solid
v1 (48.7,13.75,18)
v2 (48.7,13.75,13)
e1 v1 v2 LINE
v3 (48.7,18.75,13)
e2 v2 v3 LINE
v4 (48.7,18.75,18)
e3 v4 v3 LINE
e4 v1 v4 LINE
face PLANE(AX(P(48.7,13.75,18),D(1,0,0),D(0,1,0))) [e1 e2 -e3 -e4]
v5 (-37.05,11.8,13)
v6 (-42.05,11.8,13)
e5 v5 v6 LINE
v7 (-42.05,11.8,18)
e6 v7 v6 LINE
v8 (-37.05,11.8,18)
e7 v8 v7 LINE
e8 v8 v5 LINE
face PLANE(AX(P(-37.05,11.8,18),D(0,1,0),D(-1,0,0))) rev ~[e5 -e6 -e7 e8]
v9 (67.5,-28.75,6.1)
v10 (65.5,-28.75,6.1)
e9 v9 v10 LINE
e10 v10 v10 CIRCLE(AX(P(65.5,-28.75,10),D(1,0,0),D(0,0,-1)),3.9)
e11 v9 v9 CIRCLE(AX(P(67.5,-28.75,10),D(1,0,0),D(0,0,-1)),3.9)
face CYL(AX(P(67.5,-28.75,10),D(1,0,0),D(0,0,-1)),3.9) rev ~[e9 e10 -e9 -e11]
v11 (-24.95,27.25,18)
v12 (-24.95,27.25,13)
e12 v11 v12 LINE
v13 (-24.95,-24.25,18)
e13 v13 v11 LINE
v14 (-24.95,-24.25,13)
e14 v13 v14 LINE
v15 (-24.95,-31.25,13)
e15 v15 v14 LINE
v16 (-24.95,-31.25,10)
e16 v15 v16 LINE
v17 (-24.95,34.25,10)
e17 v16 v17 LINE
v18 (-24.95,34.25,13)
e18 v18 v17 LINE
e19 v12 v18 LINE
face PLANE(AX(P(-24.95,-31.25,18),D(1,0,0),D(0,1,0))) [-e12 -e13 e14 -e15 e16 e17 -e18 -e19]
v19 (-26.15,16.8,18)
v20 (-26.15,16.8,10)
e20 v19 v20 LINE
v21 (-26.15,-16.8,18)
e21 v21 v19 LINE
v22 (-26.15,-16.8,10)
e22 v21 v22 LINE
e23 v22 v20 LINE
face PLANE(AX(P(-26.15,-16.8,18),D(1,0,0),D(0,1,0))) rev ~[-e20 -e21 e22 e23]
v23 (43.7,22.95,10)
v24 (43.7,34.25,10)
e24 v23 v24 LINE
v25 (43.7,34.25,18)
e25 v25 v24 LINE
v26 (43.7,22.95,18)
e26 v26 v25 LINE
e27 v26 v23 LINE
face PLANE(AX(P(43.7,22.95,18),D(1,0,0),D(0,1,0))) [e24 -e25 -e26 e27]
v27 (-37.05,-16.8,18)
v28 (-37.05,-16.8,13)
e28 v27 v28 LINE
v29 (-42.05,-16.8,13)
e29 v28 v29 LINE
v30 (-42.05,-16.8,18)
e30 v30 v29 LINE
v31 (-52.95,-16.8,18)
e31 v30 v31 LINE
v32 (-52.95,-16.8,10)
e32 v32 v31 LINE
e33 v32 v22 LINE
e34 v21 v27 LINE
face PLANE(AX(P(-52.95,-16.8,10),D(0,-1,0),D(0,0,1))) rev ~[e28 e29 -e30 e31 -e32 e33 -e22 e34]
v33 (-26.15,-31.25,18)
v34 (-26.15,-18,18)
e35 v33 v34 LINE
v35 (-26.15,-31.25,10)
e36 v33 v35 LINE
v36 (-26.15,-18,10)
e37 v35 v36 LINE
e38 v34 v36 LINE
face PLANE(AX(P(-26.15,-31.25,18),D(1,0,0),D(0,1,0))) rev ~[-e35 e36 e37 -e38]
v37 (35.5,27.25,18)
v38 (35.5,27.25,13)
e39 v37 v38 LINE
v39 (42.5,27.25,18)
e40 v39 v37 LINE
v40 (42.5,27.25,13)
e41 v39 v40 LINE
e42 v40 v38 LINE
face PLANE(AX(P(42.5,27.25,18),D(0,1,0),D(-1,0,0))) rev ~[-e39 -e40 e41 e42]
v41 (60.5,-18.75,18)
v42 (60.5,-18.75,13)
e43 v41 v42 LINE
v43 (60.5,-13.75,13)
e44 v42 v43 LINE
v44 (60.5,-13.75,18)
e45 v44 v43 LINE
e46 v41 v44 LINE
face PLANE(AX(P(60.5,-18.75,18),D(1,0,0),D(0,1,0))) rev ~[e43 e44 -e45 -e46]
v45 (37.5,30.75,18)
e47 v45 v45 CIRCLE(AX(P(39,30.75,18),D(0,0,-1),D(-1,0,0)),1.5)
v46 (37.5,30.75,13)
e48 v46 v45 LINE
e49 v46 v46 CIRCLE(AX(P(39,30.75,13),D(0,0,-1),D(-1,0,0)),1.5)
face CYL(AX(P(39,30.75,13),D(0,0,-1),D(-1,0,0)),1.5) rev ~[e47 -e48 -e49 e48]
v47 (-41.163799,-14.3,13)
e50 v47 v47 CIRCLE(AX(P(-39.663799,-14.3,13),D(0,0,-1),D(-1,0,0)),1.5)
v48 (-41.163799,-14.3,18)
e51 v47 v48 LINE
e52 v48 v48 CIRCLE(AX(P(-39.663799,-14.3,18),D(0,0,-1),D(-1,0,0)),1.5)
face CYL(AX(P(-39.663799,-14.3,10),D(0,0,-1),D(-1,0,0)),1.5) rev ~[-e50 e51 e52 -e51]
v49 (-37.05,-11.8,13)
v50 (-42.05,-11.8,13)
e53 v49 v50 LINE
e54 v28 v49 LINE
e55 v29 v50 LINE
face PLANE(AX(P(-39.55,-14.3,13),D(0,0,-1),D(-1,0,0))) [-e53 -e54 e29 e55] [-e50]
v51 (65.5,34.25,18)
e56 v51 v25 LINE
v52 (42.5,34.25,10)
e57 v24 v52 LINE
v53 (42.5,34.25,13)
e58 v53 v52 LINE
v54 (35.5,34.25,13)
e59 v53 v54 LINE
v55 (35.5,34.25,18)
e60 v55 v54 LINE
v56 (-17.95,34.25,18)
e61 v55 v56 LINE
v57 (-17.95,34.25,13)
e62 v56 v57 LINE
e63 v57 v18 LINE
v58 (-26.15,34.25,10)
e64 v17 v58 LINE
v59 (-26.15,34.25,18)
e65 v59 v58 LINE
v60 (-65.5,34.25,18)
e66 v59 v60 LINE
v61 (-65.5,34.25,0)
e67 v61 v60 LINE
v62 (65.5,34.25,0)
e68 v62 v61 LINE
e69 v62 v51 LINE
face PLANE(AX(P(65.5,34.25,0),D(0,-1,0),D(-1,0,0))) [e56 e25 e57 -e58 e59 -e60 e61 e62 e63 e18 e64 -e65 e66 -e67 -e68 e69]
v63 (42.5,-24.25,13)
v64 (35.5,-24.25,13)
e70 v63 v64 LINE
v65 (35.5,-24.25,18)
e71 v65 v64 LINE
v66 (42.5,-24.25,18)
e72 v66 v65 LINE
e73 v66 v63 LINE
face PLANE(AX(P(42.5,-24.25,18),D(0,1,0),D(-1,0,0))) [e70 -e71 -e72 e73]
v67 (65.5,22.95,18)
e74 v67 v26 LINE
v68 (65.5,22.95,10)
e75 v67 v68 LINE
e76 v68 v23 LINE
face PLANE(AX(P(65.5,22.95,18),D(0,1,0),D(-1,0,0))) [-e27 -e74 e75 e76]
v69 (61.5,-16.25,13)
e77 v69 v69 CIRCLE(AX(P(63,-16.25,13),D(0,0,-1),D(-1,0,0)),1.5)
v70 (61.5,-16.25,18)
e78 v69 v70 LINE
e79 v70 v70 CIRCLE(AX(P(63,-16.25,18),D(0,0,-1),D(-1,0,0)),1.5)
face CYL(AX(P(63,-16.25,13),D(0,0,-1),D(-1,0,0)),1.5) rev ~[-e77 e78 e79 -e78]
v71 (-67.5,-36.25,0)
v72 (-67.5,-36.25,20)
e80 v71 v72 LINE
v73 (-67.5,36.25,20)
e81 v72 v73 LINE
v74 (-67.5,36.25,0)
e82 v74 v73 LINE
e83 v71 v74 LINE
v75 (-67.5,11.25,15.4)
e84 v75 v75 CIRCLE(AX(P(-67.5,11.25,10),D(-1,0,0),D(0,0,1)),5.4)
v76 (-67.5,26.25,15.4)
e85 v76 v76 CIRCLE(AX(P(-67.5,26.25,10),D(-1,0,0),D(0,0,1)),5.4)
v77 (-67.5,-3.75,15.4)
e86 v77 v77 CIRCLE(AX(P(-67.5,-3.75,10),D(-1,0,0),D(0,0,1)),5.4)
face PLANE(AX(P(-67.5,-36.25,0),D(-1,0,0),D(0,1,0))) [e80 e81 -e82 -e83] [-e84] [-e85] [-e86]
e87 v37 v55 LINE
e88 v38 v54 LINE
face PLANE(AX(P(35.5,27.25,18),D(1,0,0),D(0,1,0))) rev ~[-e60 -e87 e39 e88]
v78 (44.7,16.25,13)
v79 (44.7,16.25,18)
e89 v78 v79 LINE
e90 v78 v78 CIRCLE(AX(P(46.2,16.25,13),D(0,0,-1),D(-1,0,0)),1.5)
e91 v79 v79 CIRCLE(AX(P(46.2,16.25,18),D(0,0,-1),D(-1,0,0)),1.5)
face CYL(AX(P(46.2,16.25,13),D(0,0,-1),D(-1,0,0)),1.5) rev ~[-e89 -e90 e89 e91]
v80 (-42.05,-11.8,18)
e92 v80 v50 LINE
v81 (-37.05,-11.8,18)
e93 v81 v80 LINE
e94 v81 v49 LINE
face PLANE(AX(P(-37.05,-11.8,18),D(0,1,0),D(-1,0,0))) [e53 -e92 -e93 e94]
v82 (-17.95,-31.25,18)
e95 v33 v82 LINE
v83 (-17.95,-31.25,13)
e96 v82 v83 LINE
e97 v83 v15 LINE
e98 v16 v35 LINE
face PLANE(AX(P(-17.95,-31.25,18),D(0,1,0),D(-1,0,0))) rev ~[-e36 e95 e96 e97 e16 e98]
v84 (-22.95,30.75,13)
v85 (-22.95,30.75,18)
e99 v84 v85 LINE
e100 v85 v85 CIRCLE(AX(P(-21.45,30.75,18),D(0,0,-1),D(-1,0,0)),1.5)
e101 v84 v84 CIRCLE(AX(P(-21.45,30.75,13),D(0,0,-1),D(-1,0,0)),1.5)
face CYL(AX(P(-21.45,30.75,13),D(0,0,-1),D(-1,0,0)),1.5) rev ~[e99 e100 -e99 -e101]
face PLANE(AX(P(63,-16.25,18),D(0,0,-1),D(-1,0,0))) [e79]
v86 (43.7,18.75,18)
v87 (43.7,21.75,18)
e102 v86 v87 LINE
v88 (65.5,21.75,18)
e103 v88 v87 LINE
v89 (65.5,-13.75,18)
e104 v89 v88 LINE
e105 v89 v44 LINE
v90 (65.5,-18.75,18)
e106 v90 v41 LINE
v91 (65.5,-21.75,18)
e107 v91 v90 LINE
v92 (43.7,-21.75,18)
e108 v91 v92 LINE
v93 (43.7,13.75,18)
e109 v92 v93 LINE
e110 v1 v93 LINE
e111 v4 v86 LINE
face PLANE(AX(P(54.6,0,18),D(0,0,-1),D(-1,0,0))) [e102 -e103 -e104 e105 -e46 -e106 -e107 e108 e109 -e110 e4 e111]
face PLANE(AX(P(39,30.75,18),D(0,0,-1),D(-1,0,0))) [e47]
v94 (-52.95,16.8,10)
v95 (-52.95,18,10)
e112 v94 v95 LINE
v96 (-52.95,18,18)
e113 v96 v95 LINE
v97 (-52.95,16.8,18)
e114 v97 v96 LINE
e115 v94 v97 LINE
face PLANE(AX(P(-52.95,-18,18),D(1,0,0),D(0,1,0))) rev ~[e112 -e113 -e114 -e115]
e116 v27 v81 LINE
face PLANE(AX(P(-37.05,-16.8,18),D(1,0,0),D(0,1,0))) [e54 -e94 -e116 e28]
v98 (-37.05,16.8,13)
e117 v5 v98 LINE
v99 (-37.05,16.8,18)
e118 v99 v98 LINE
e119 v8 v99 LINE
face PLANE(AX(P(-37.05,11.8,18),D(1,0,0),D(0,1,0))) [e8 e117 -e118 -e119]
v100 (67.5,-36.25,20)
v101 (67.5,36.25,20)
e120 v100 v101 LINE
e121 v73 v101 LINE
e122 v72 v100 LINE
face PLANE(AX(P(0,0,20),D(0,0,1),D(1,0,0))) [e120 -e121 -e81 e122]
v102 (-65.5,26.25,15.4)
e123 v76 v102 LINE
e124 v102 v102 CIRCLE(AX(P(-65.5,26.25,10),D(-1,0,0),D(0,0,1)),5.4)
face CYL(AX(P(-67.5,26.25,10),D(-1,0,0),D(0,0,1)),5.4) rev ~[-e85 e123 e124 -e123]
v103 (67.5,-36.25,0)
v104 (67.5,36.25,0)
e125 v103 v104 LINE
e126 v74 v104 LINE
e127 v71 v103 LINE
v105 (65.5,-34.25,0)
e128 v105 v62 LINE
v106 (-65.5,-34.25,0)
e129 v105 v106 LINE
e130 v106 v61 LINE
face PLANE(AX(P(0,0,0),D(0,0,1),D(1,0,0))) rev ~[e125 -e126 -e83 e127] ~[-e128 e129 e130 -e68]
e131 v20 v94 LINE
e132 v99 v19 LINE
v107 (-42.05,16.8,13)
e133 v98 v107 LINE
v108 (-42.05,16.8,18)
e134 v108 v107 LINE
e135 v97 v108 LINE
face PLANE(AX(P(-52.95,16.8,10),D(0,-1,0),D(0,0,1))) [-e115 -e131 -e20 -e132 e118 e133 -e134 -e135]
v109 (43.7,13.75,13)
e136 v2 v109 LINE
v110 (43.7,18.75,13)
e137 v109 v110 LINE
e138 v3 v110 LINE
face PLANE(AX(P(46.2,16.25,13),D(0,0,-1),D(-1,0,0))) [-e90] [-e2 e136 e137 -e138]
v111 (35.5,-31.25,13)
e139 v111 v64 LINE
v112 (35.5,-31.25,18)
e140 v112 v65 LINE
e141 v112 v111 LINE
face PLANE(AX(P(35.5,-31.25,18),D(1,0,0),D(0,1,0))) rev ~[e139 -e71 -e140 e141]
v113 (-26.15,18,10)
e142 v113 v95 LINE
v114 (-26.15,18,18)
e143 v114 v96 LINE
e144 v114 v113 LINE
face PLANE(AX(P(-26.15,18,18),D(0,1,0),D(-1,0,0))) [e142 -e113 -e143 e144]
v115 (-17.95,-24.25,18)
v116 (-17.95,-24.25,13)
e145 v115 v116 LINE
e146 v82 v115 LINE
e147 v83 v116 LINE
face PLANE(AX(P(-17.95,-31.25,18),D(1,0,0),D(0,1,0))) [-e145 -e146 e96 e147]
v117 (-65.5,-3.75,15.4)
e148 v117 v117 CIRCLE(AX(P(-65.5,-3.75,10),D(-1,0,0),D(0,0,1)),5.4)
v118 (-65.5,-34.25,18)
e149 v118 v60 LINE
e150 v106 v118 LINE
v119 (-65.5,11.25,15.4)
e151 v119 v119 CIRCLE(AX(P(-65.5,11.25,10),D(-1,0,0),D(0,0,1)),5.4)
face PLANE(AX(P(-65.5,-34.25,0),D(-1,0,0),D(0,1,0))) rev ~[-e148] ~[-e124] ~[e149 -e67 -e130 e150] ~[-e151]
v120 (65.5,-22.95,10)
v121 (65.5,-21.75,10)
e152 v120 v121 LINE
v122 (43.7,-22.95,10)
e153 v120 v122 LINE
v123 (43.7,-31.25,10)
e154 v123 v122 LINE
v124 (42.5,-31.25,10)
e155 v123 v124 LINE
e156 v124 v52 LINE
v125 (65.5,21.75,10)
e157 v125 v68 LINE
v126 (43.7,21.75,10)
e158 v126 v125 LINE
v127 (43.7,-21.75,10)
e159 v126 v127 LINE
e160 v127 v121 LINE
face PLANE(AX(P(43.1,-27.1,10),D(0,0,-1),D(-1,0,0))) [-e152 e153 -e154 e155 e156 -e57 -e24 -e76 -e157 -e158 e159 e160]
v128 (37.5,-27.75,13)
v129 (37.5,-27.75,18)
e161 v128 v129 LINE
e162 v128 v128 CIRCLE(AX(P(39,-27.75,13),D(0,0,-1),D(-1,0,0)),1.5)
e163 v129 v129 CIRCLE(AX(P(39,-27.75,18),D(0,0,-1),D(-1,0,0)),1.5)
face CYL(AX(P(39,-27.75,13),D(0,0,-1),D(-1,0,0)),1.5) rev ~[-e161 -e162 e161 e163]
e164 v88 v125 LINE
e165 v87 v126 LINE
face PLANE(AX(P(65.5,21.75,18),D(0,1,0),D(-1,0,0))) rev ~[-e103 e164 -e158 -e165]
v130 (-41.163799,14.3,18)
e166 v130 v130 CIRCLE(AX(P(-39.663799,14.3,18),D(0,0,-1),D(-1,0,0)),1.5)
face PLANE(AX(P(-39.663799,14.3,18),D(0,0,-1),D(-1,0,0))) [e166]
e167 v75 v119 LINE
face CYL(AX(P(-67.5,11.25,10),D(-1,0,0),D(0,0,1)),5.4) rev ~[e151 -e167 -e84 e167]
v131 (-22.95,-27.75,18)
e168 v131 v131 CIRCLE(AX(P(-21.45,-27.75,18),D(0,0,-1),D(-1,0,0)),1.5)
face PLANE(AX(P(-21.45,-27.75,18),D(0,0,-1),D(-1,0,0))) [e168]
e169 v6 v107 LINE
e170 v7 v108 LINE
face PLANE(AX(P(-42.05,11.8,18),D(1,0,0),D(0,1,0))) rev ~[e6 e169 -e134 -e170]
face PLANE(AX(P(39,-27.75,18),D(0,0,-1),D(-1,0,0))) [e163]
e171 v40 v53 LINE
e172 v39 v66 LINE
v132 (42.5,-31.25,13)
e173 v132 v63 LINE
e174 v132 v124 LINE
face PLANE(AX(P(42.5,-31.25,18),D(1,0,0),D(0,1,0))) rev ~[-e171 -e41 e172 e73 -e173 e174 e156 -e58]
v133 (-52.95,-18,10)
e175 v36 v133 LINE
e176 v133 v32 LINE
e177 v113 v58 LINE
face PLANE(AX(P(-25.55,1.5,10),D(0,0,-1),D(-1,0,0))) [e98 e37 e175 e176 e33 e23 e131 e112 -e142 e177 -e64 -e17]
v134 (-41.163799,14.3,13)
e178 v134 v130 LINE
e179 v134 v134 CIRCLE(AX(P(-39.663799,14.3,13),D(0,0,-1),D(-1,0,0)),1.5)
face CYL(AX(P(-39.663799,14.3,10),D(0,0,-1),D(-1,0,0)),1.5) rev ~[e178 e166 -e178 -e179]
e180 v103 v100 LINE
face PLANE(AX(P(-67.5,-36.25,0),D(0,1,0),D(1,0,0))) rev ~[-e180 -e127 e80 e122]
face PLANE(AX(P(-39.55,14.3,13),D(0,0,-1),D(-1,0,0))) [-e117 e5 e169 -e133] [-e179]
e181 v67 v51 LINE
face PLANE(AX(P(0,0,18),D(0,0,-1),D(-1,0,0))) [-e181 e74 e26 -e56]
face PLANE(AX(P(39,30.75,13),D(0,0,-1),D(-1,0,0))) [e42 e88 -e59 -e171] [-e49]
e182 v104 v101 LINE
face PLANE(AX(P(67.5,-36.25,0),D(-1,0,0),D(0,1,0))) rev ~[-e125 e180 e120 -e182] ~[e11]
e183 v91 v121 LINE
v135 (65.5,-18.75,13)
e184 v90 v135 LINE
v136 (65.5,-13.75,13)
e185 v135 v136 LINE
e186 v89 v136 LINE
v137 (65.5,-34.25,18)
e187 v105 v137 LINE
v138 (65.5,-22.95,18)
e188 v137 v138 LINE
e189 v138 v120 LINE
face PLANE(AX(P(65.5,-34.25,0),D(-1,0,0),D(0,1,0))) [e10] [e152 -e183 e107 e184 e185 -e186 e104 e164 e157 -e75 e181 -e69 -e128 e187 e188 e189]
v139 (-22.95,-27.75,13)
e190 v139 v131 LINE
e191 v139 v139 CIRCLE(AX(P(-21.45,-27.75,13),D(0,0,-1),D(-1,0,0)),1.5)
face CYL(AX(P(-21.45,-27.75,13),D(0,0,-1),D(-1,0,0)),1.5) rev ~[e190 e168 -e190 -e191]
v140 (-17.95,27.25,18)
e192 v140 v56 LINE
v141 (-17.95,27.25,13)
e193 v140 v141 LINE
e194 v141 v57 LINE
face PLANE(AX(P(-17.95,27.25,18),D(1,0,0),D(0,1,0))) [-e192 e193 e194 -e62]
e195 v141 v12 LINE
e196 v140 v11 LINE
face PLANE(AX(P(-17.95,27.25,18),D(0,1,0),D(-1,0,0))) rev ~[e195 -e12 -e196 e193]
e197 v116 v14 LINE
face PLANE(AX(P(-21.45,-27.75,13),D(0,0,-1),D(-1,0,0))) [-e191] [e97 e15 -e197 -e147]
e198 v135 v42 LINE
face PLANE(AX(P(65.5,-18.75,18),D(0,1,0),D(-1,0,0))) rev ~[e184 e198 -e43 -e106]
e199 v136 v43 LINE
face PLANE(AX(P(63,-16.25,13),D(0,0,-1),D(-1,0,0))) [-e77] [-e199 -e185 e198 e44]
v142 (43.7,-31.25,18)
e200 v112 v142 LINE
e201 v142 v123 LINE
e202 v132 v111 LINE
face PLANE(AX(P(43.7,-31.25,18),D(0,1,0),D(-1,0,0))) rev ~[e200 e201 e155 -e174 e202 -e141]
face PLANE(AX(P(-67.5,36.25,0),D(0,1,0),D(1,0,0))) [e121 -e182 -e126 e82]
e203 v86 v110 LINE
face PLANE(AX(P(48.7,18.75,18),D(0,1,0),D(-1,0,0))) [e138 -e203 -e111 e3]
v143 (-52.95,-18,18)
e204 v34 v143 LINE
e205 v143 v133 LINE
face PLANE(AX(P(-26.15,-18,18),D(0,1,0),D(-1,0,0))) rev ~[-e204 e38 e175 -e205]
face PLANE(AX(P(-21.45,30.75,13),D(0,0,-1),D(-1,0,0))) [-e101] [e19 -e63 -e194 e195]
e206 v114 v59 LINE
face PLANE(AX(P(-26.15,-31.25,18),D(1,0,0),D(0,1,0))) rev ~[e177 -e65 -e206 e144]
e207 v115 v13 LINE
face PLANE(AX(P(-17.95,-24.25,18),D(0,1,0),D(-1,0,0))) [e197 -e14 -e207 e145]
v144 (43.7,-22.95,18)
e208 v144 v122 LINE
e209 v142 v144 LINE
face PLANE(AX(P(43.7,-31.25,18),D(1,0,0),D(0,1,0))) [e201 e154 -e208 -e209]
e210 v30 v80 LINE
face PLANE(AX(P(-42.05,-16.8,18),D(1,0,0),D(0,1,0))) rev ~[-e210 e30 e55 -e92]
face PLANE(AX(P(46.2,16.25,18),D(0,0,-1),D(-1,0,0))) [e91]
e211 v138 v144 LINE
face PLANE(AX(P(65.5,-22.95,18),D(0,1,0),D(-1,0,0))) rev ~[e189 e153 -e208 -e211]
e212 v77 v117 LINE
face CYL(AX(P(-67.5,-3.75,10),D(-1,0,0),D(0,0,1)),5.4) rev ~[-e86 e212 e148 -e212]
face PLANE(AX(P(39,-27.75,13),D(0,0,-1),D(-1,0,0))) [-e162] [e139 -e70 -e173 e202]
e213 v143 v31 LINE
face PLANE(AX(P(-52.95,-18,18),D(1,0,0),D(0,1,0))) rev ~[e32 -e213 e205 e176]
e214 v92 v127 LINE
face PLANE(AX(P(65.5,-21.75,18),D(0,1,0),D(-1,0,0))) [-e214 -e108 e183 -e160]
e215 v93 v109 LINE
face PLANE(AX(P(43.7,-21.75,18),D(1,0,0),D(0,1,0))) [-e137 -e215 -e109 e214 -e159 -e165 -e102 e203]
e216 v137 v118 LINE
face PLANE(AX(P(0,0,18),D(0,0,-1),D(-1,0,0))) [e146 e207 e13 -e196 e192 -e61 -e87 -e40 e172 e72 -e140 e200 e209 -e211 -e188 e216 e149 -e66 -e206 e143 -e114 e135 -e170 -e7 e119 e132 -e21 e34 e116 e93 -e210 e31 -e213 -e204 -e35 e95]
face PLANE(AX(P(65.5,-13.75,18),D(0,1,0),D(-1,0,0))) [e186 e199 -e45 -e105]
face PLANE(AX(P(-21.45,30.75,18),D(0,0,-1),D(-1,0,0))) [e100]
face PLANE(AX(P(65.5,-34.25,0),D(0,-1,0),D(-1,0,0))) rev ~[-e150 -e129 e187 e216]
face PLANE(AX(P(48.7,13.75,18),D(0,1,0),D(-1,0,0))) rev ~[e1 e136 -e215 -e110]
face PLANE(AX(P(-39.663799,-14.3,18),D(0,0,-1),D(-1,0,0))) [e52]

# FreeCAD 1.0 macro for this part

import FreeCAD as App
import Part
import Sketcher
from FreeCAD import Vector
Q = App.Units.Quantity

doc = App.newDocument("Part")
body = doc.addObject("PartDesign::Body", "Body")

# Sketch on XY plane
sketch1 = body.newObject("Sketcher::SketchObject", "Sketch")
sketch1.AttachmentSupport = (doc.getObject("XY_Plane"), [""])
sketch1.MapMode = "FlatFace"
sketch1.addGeometry([
    Part.LineSegment(Vector(-68, 36, 0), Vector(-68, -36, 0)),
    Part.LineSegment(Vector(-68, -36, 0), Vector(68, -36, 0)),
    Part.LineSegment(Vector(68, -36, 0), Vector(68, 36, 0)),
    Part.LineSegment(Vector(68, 36, 0), Vector(-68, 36, 0)),
], False)
sketch1.addConstraint([
    Sketcher.Constraint("Coincident", 0, 2, 1, 1),
    Sketcher.Constraint("Coincident", 1, 2, 2, 1),
    Sketcher.Constraint("Coincident", 2, 2, 3, 1),
    Sketcher.Constraint("Coincident", 3, 2, 0, 1),
    Sketcher.Constraint("Vertical", 0),
    Sketcher.Constraint("Horizontal", 1),
    Sketcher.Constraint("Vertical", 2),
    Sketcher.Constraint("Horizontal", 3),
    Sketcher.Constraint("Symmetric", 0, 2, 2, 2, -1, 1),
    Sketcher.Constraint("DistanceX", 1, 1, 1, 2, Q("135 mm")),
    Sketcher.Constraint("DistanceY", 0, 2, 0, 1, Q("72.5 mm")),
])
pad1 = body.newObject("PartDesign::Pad", "Pad")
pad1.Profile = sketch1
pad1.Length = 20

# Sketch on XY plane
sketch2 = body.newObject("Sketcher::SketchObject", "Sketch001")
sketch2.AttachmentSupport = (doc.getObject("XY_Plane"), [""])
sketch2.MapMode = "FlatFace"
sketch2.addGeometry([
    Part.LineSegment(Vector(66, 34, 0), Vector(66, -34, 0)),
    Part.LineSegment(Vector(66, -34, 0), Vector(-66, -34, 0)),
    Part.LineSegment(Vector(-66, -34, 0), Vector(-66, 34, 0)),
    Part.LineSegment(Vector(-66, 34, 0), Vector(66, 34, 0)),
], False)
sketch2.addConstraint([
    Sketcher.Constraint("Coincident", 0, 2, 1, 1),
    Sketcher.Constraint("Coincident", 1, 2, 2, 1),
    Sketcher.Constraint("Coincident", 2, 2, 3, 1),
    Sketcher.Constraint("Coincident", 3, 2, 0, 1),
    Sketcher.Constraint("Vertical", 0),
    Sketcher.Constraint("Horizontal", 1),
    Sketcher.Constraint("Vertical", 2),
    Sketcher.Constraint("Horizontal", 3),
    Sketcher.Constraint("Symmetric", 0, 2, 2, 2, -1, 1),
    Sketcher.Constraint("DistanceX", 1, 2, 1, 1, Q("131 mm")),
    Sketcher.Constraint("DistanceY", 0, 2, 0, 1, Q("68.5 mm")),
])
pocket1 = body.newObject("PartDesign::Pocket", "Pocket")
pocket1.Profile = sketch2
pocket1.Length = 18
pocket1.Reversed = True

# Sketch on XY plane
sketch3 = body.newObject("Sketcher::SketchObject", "Sketch002")
sketch3.AttachmentSupport = (doc.getObject("XY_Plane"), [""])
sketch3.MapMode = "FlatFace"
sketch3.AttachmentOffset = App.Placement(Vector(0, 0, 18), App.Rotation())
sketch3.addGeometry([
    Part.LineSegment(Vector(66, 23, 0), Vector(66, -23, 0)),
    Part.LineSegment(Vector(66, -23, 0), Vector(42, -23, 0)),
    Part.LineSegment(Vector(42, -23, 0), Vector(42, 23, 0)),
    Part.LineSegment(Vector(42, 23, 0), Vector(66, 23, 0)),
], False)
sketch3.addConstraint([
    Sketcher.Constraint("Coincident", 0, 2, 1, 1),
    Sketcher.Constraint("Coincident", 1, 2, 2, 1),
    Sketcher.Constraint("Coincident", 2, 2, 3, 1),
    Sketcher.Constraint("Coincident", 3, 2, 0, 1),
    Sketcher.Constraint("Vertical", 0),
    Sketcher.Constraint("Horizontal", 1),
    Sketcher.Constraint("Vertical", 2),
    Sketcher.Constraint("Horizontal", 3),
    Sketcher.Constraint("DistanceX", 1, 2, 1, 1, Q("23 mm")),
    Sketcher.Constraint("DistanceY", 0, 2, 0, 1, Q("45.9 mm")),
    Sketcher.Constraint("DistanceX", -1, 1, 0, 2, Q("65.5 mm")),
    Sketcher.Constraint("DistanceY", 0, 2, -1, 1, Q("22.95 mm")),
])
pad2 = body.newObject("PartDesign::Pad", "Pad001")
pad2.Profile = sketch3
pad2.Length = 8
pad2.Reversed = True

# Sketch on XY plane
sketch4 = body.newObject("Sketcher::SketchObject", "Sketch003")
sketch4.AttachmentSupport = (doc.getObject("XY_Plane"), [""])
sketch4.MapMode = "FlatFace"
sketch4.AttachmentOffset = App.Placement(Vector(0, 0, 18), App.Rotation())
sketch4.addGeometry([
    Part.LineSegment(Vector(66, 22, 0), Vector(66, -22, 0)),
    Part.LineSegment(Vector(66, -22, 0), Vector(44, -22, 0)),
    Part.LineSegment(Vector(44, -22, 0), Vector(44, 22, 0)),
    Part.LineSegment(Vector(44, 22, 0), Vector(66, 22, 0)),
], False)
sketch4.addConstraint([
    Sketcher.Constraint("Coincident", 0, 2, 1, 1),
    Sketcher.Constraint("Coincident", 1, 2, 2, 1),
    Sketcher.Constraint("Coincident", 2, 2, 3, 1),
    Sketcher.Constraint("Coincident", 3, 2, 0, 1),
    Sketcher.Constraint("Vertical", 0),
    Sketcher.Constraint("Horizontal", 1),
    Sketcher.Constraint("Vertical", 2),
    Sketcher.Constraint("Horizontal", 3),
    Sketcher.Constraint("DistanceX", 1, 2, 1, 1, Q("21.8 mm")),
    Sketcher.Constraint("DistanceY", 0, 2, 0, 1, Q("43.5 mm")),
    Sketcher.Constraint("DistanceX", -1, 1, 0, 2, Q("65.5 mm")),
    Sketcher.Constraint("DistanceY", 0, 2, -1, 1, Q("21.75 mm")),
])
pocket2 = body.newObject("PartDesign::Pocket", "Pocket001")
pocket2.Profile = sketch4
pocket2.Length = 18

# Sketch on XY plane
sketch5 = body.newObject("Sketcher::SketchObject", "Sketch004")
sketch5.AttachmentSupport = (doc.getObject("XY_Plane"), [""])
sketch5.MapMode = "FlatFace"
sketch5.AttachmentOffset = App.Placement(Vector(0, 0, 18), App.Rotation())
sketch5.addGeometry([
    Part.LineSegment(Vector(43.7, -22.9, 0), Vector(43.7, -31.2, 0)),  # 0
    Part.LineSegment(Vector(43.7, -31.2, 0), Vector(42.5, -31.2, 0)),  # 1
    Part.LineSegment(Vector(42.5, -31.2, 0), Vector(42.5, -22.9, 0)),  # 2
    Part.LineSegment(Vector(42.5, -22.9, 0), Vector(43.7, -22.9, 0)),  # 3
    Part.LineSegment(Vector(43.7, 34.2, 0), Vector(43.7, 22.9, 0)),  # 4
    Part.LineSegment(Vector(43.7, 22.9, 0), Vector(42.5, 22.9, 0)),  # 5
    Part.LineSegment(Vector(42.5, 22.9, 0), Vector(42.5, 34.2, 0)),  # 6
    Part.LineSegment(Vector(42.5, 34.2, 0), Vector(43.7, 34.2, 0)),  # 7
], False)
sketch5.addConstraint([
    Sketcher.Constraint("Coincident", 0, 2, 1, 1),
    Sketcher.Constraint("Coincident", 1, 2, 2, 1),
    Sketcher.Constraint("Coincident", 2, 2, 3, 1),
    Sketcher.Constraint("Coincident", 3, 2, 0, 1),
    Sketcher.Constraint("Coincident", 4, 2, 5, 1),
    Sketcher.Constraint("Coincident", 5, 2, 6, 1),
    Sketcher.Constraint("Coincident", 6, 2, 7, 1),
    Sketcher.Constraint("Coincident", 7, 2, 4, 1),
    Sketcher.Constraint("Vertical", 0),
    Sketcher.Constraint("Horizontal", 1),
    Sketcher.Constraint("Vertical", 2),
    Sketcher.Constraint("Horizontal", 3),
    Sketcher.Constraint("Vertical", 4),
    Sketcher.Constraint("Horizontal", 5),
    Sketcher.Constraint("Vertical", 6),
    Sketcher.Constraint("Horizontal", 7),
    Sketcher.Constraint("Symmetric", 3, 2, 4, 2, -1),
    Sketcher.Constraint("Vertical", 2, 2, 5, 2),
    Sketcher.Constraint("DistanceX", 1, 2, 1, 1, Q("1.2 mm")),
    Sketcher.Constraint("DistanceY", 0, 2, 0, 1, Q("8.3 mm")),
    Sketcher.Constraint("DistanceY", 4, 2, 4, 1, Q("11.3 mm")),
    Sketcher.Constraint("DistanceX", -1, 1, 0, 2, Q("43.7 mm")),
    Sketcher.Constraint("DistanceY", 3, 2, 4, 2, Q("45.9 mm")),
])
pad3 = body.newObject("PartDesign::Pad", "Pad002")
pad3.Profile = sketch5
pad3.Length = 8
pad3.Reversed = True

# Sketch on XY plane
sketch6 = body.newObject("Sketcher::SketchObject", "Sketch005")
sketch6.AttachmentSupport = (doc.getObject("XY_Plane"), [""])
sketch6.MapMode = "FlatFace"
sketch6.AttachmentOffset = App.Placement(Vector(0, 0, 18), App.Rotation())
sketch6.addGeometry([
    Part.LineSegment(Vector(-24.9, 34.2, 0), Vector(-24.9, -31.2, 0)),
    Part.LineSegment(Vector(-24.9, -31.2, 0), Vector(-26.1, -31.2, 0)),
    Part.LineSegment(Vector(-26.1, -31.2, 0), Vector(-26.1, 34.2, 0)),
    Part.LineSegment(Vector(-26.1, 34.2, 0), Vector(-24.9, 34.2, 0)),
], False)
sketch6.addConstraint([
    Sketcher.Constraint("Coincident", 0, 2, 1, 1),
    Sketcher.Constraint("Coincident", 1, 2, 2, 1),
    Sketcher.Constraint("Coincident", 2, 2, 3, 1),
    Sketcher.Constraint("Coincident", 3, 2, 0, 1),
    Sketcher.Constraint("Vertical", 0),
    Sketcher.Constraint("Horizontal", 1),
    Sketcher.Constraint("Vertical", 2),
    Sketcher.Constraint("Horizontal", 3),
    Sketcher.Constraint("DistanceX", 1, 2, 1, 1, Q("1.2 mm")),
    Sketcher.Constraint("DistanceY", 0, 2, 0, 1, Q("65.5 mm")),
    Sketcher.Constraint("DistanceX", 0, 2, -1, 1, Q("24.95 mm")),
    Sketcher.Constraint("DistanceY", 0, 2, -1, 1, Q("31.25 mm")),
])
pad4 = body.newObject("PartDesign::Pad", "Pad003")
pad4.Profile = sketch6
pad4.Length = 8
pad4.Reversed = True

# Sketch on XY plane
sketch7 = body.newObject("Sketcher::SketchObject", "Sketch006")
sketch7.AttachmentSupport = (doc.getObject("XY_Plane"), [""])
sketch7.MapMode = "FlatFace"
sketch7.AttachmentOffset = App.Placement(Vector(0, 0, 18), App.Rotation())
sketch7.addGeometry([
    Part.LineSegment(Vector(-26, 18, 0), Vector(-26, -18, 0)),
    Part.LineSegment(Vector(-26, -18, 0), Vector(-53, -18, 0)),
    Part.LineSegment(Vector(-53, -18, 0), Vector(-53, 18, 0)),
    Part.LineSegment(Vector(-53, 18, 0), Vector(-26, 18, 0)),
], False)
sketch7.addConstraint([
    Sketcher.Constraint("Coincident", 0, 2, 1, 1),
    Sketcher.Constraint("Coincident", 1, 2, 2, 1),
    Sketcher.Constraint("Coincident", 2, 2, 3, 1),
    Sketcher.Constraint("Coincident", 3, 2, 0, 1),
    Sketcher.Constraint("Vertical", 0),
    Sketcher.Constraint("Horizontal", 1),
    Sketcher.Constraint("Vertical", 2),
    Sketcher.Constraint("Horizontal", 3),
    Sketcher.Constraint("DistanceY", 0, 2, 0, 1, Q("36 mm")),
    Sketcher.Constraint("DistanceX", 1, 2, 1, 1, Q("26.8 mm")),
    Sketcher.Constraint("DistanceY", 0, 2, -1, 1, Q("18 mm")),
    Sketcher.Constraint("DistanceX", 0, 2, -1, 1, Q("26.15 mm")),
])
pad5 = body.newObject("PartDesign::Pad", "Pad004")
pad5.Profile = sketch7
pad5.Length = 8
pad5.Reversed = True

# Sketch on XY plane
sketch8 = body.newObject("Sketcher::SketchObject", "Sketch007")
sketch8.AttachmentSupport = (doc.getObject("XY_Plane"), [""])
sketch8.MapMode = "FlatFace"
sketch8.AttachmentOffset = App.Placement(Vector(0, 0, 18), App.Rotation())
sketch8.addGeometry([
    Part.LineSegment(Vector(-26, 17, 0), Vector(-26, -17, 0)),
    Part.LineSegment(Vector(-26, -17, 0), Vector(-52, -17, 0)),
    Part.LineSegment(Vector(-52, -17, 0), Vector(-52, 17, 0)),
    Part.LineSegment(Vector(-52, 17, 0), Vector(-26, 17, 0)),
], False)
sketch8.addConstraint([
    Sketcher.Constraint("Coincident", 0, 2, 1, 1),
    Sketcher.Constraint("Coincident", 1, 2, 2, 1),
    Sketcher.Constraint("Coincident", 2, 2, 3, 1),
    Sketcher.Constraint("Coincident", 3, 2, 0, 1),
    Sketcher.Constraint("Vertical", 0),
    Sketcher.Constraint("Horizontal", 1),
    Sketcher.Constraint("Vertical", 2),
    Sketcher.Constraint("Horizontal", 3),
    Sketcher.Constraint("DistanceX", 1, 2, 1, 1, Q("25.6 mm")),
    Sketcher.Constraint("DistanceY", 0, 2, 0, 1, Q("33.6 mm")),
    Sketcher.Constraint("DistanceY", 0, 2, -1, 1, Q("16.8 mm")),
    Sketcher.Constraint("DistanceX", 0, 2, -1, 1, Q("26.15 mm")),
])
pocket3 = body.newObject("PartDesign::Pocket", "Pocket002")
pocket3.Profile = sketch8
pocket3.Length = 8

# Sketch on YZ plane
sketch9 = body.newObject("Sketcher::SketchObject", "Sketch008")
sketch9.AttachmentSupport = (doc.getObject("YZ_Plane"), [""])
sketch9.MapMode = "FlatFace"
sketch9.AttachmentOffset = App.Placement(Vector(0, 0, -52.95), App.Rotation())
sketch9.addGeometry([
    Part.LineSegment(Vector(17, 10, 0), Vector(-17, 10, 0)),
    Part.LineSegment(Vector(-17, 10, 0), Vector(-17, 18, 0)),
    Part.LineSegment(Vector(-17, 18, 0), Vector(17, 18, 0)),
    Part.LineSegment(Vector(17, 18, 0), Vector(17, 10, 0)),
], False)
sketch9.addConstraint([
    Sketcher.Constraint("Coincident", 0, 2, 1, 1),
    Sketcher.Constraint("Coincident", 1, 2, 2, 1),
    Sketcher.Constraint("Coincident", 2, 2, 3, 1),
    Sketcher.Constraint("Coincident", 3, 2, 0, 1),
    Sketcher.Constraint("Horizontal", 0),
    Sketcher.Constraint("Vertical", 1),
    Sketcher.Constraint("Horizontal", 2),
    Sketcher.Constraint("Vertical", 3),
    Sketcher.Constraint("DistanceY", 1, 1, 1, 2, Q("8 mm")),
    Sketcher.Constraint("DistanceX", 0, 2, 0, 1, Q("33.6 mm")),
    Sketcher.Constraint("DistanceY", -1, 1, 0, 2, Q("10 mm")),
    Sketcher.Constraint("DistanceX", 0, 2, -1, 1, Q("16.8 mm")),
])
pocket4 = body.newObject("PartDesign::Pocket", "Pocket003")
pocket4.Profile = sketch9
pocket4.Length = 1.2
pocket4.Reversed = True

# Sketch on YZ plane
sketch10 = body.newObject("Sketcher::SketchObject", "Sketch009")
sketch10.AttachmentSupport = (doc.getObject("YZ_Plane"), [""])
sketch10.MapMode = "FlatFace"
sketch10.AttachmentOffset = App.Placement(Vector(0, 0, 67.5), App.Rotation())
sketch10.addGeometry(Part.Circle(Vector(-28.8, 10, 0), Vector(0, 0, 1), 3.9), False)
sketch10.addConstraint([
    Sketcher.Constraint("Diameter", 0, Q("7.8 mm")),
    Sketcher.Constraint("DistanceY", -1, 1, 0, 3, Q("10 mm")),
    Sketcher.Constraint("DistanceX", 0, 3, -1, 1, Q("28.75 mm")),
])
pocket5 = body.newObject("PartDesign::Pocket", "Pocket004")
pocket5.Profile = sketch10
pocket5.Length = 2

# Sketch on YZ plane
sketch11 = body.newObject("Sketcher::SketchObject", "Sketch010")
sketch11.AttachmentSupport = (doc.getObject("YZ_Plane"), [""])
sketch11.MapMode = "FlatFace"
sketch11.AttachmentOffset = App.Placement(Vector(0, 0, -67.5), App.Rotation())
sketch11.addGeometry([
    Part.Circle(Vector(26, 10, 0), Vector(0, 0, 1), 5),
    Part.Circle(Vector(11, 10, 0), Vector(0, 0, 1), 5),
    Part.Circle(Vector(-4, 10, 0), Vector(0, 0, 1), 5),
], False)
sketch11.addConstraint([
    Sketcher.Constraint("Equal", 0, 1),
    Sketcher.Constraint("Equal", 1, 2),
    Sketcher.Constraint("Horizontal", 0, 3, 1, 3),
    Sketcher.Constraint("Horizontal", 1, 3, 2, 3),
    Sketcher.Constraint("Diameter", 0, Q("10.8 mm")),
    Sketcher.Constraint("DistanceY", -1, 1, 0, 3, Q("10 mm")),
    Sketcher.Constraint("DistanceX", 1, 3, 0, 3, Q("15 mm")),
    Sketcher.Constraint("DistanceX", 2, 3, 1, 3, Q("15 mm")),
    Sketcher.Constraint("DistanceX", -1, 1, 0, 3, Q("26.25 mm")),
])
pocket6 = body.newObject("PartDesign::Pocket", "Pocket005")
pocket6.Profile = sketch11
pocket6.Length = 2
pocket6.Reversed = True

# Sketch on XY plane
sketch12 = body.newObject("Sketcher::SketchObject", "Sketch011")
sketch12.AttachmentSupport = (doc.getObject("XY_Plane"), [""])
sketch12.MapMode = "FlatFace"
sketch12.AttachmentOffset = App.Placement(Vector(0, 0, 18), App.Rotation())
sketch12.addGeometry([
    Part.LineSegment(Vector(-37, -12, 0), Vector(-37, -17, 0)),  # 0
    Part.LineSegment(Vector(-37, -17, 0), Vector(-42, -17, 0)),  # 1
    Part.LineSegment(Vector(-42, -17, 0), Vector(-42, -12, 0)),  # 2
    Part.LineSegment(Vector(-42, -12, 0), Vector(-37, -12, 0)),  # 3
    Part.LineSegment(Vector(-37, 17, 0), Vector(-37, 12, 0)),  # 4
    Part.LineSegment(Vector(-37, 12, 0), Vector(-42, 12, 0)),  # 5
    Part.LineSegment(Vector(-42, 12, 0), Vector(-42, 17, 0)),  # 6
    Part.LineSegment(Vector(-42, 17, 0), Vector(-37, 17, 0)),  # 7
], False)
sketch12.addConstraint([
    Sketcher.Constraint("Coincident", 0, 2, 1, 1),
    Sketcher.Constraint("Coincident", 1, 2, 2, 1),
    Sketcher.Constraint("Coincident", 2, 2, 3, 1),
    Sketcher.Constraint("Coincident", 3, 2, 0, 1),
    Sketcher.Constraint("Coincident", 4, 2, 5, 1),
    Sketcher.Constraint("Coincident", 5, 2, 6, 1),
    Sketcher.Constraint("Coincident", 6, 2, 7, 1),
    Sketcher.Constraint("Coincident", 7, 2, 4, 1),
    Sketcher.Constraint("Vertical", 0),
    Sketcher.Constraint("Horizontal", 1),
    Sketcher.Constraint("Vertical", 2),
    Sketcher.Constraint("Horizontal", 3),
    Sketcher.Constraint("Vertical", 4),
    Sketcher.Constraint("Horizontal", 5),
    Sketcher.Constraint("Vertical", 6),
    Sketcher.Constraint("Horizontal", 7),
    Sketcher.Constraint("Symmetric", 3, 2, 4, 2, -1),
    Sketcher.Constraint("Symmetric", 1, 2, 6, 2, -1),
    Sketcher.Constraint("Equal", 7, 0),
    Sketcher.Constraint("DistanceX", 1, 2, 1, 1, Q("5 mm")),
    Sketcher.Constraint("DistanceY", 0, 2, -1, 1, Q("16.8 mm")),
    Sketcher.Constraint("DistanceX", 0, 2, -1, 1, Q("37.05 mm")),
])
pad6 = body.newObject("PartDesign::Pad", "Pad005")
pad6.Profile = sketch12
pad6.Length = 5
pad6.Reversed = True

# Sketch on XY plane
sketch13 = body.newObject("Sketcher::SketchObject", "Sketch012")
sketch13.AttachmentSupport = (doc.getObject("XY_Plane"), [""])
sketch13.MapMode = "FlatFace"
sketch13.AttachmentOffset = App.Placement(Vector(0, 0, 10), App.Rotation())
sketch13.addGeometry([
    Part.Circle(Vector(-39.7, -14.3, 0), Vector(0, 0, 1), 1.5),
    Part.Circle(Vector(-39.7, 14.3, 0), Vector(0, 0, 1), 1.5),
], False)
sketch13.addConstraint([
    Sketcher.Constraint("Equal", 0, 1),
    Sketcher.Constraint("Symmetric", 0, 3, 1, 3, -1),
    Sketcher.Constraint("Diameter", 0, Q("3 mm")),
    Sketcher.Constraint("DistanceY", 0, 3, -1, 1, Q("14.3 mm")),
    Sketcher.Constraint("DistanceX", 0, 3, -1, 1, Q("39.663799 mm")),
])
pocket7 = body.newObject("PartDesign::Pocket", "Pocket006")
pocket7.Profile = sketch13
pocket7.Length = 8
pocket7.Reversed = True

# Sketch on XY plane
sketch14 = body.newObject("Sketcher::SketchObject", "Sketch013")
sketch14.AttachmentSupport = (doc.getObject("XY_Plane"), [""])
sketch14.MapMode = "FlatFace"
sketch14.AttachmentOffset = App.Placement(Vector(0, 0, 18), App.Rotation())
sketch14.addGeometry([
    Part.LineSegment(Vector(49, 19, 0), Vector(49, 14, 0)),  # 0
    Part.LineSegment(Vector(49, 14, 0), Vector(44, 14, 0)),  # 1
    Part.LineSegment(Vector(44, 14, 0), Vector(44, 19, 0)),  # 2
    Part.LineSegment(Vector(44, 19, 0), Vector(49, 19, 0)),  # 3
    Part.LineSegment(Vector(66, -14, 0), Vector(66, -19, 0)),  # 4
    Part.LineSegment(Vector(66, -19, 0), Vector(60, -19, 0)),  # 5
    Part.LineSegment(Vector(60, -19, 0), Vector(60, -14, 0)),  # 6
    Part.LineSegment(Vector(60, -14, 0), Vector(66, -14, 0)),  # 7
], False)
sketch14.addConstraint([
    Sketcher.Constraint("Coincident", 0, 2, 1, 1),
    Sketcher.Constraint("Coincident", 1, 2, 2, 1),
    Sketcher.Constraint("Coincident", 2, 2, 3, 1),
    Sketcher.Constraint("Coincident", 3, 2, 0, 1),
    Sketcher.Constraint("Coincident", 4, 2, 5, 1),
    Sketcher.Constraint("Coincident", 5, 2, 6, 1),
    Sketcher.Constraint("Coincident", 6, 2, 7, 1),
    Sketcher.Constraint("Coincident", 7, 2, 4, 1),
    Sketcher.Constraint("Vertical", 0),
    Sketcher.Constraint("Horizontal", 1),
    Sketcher.Constraint("Vertical", 2),
    Sketcher.Constraint("Horizontal", 3),
    Sketcher.Constraint("Vertical", 4),
    Sketcher.Constraint("Horizontal", 5),
    Sketcher.Constraint("Vertical", 6),
    Sketcher.Constraint("Horizontal", 7),
    Sketcher.Constraint("Equal", 3, 5),
    Sketcher.Constraint("Equal", 7, 0),
    Sketcher.Constraint("Equal", 2, 4),
    Sketcher.Constraint("DistanceX", 1, 2, 1, 1, Q("5 mm")),
    Sketcher.Constraint("DistanceX", -1, 1, 0, 2, Q("48.7 mm")),
    Sketcher.Constraint("DistanceX", -1, 1, 4, 2, Q("65.5 mm")),
    Sketcher.Constraint("DistanceY", 4, 2, 0, 2, Q("32.5 mm")),
    Sketcher.Constraint("DistanceY", -1, 1, 0, 2, Q("13.75 mm")),
])
pad7 = body.newObject("PartDesign::Pad", "Pad006")
pad7.Profile = sketch14
pad7.Length = 5
pad7.Reversed = True

# Sketch on XY plane
sketch15 = body.newObject("Sketcher::SketchObject", "Sketch014")
sketch15.AttachmentSupport = (doc.getObject("XY_Plane"), [""])
sketch15.MapMode = "FlatFace"
sketch15.AttachmentOffset = App.Placement(Vector(0, 0, 13), App.Rotation())
sketch15.addGeometry([
    Part.Circle(Vector(46.2, 16.2, 0), Vector(0, 0, 1), 1.5),
    Part.Circle(Vector(63, -16.2, 0), Vector(0, 0, 1), 1.5),
], False)
sketch15.addConstraint([
    Sketcher.Constraint("Equal", 0, 1),
    Sketcher.Constraint("Diameter", 0, Q("3 mm")),
    Sketcher.Constraint("DistanceX", -1, 1, 1, 3, Q("63 mm")),
    Sketcher.Constraint("DistanceX", -1, 1, 0, 3, Q("46.2 mm")),
    Sketcher.Constraint("DistanceY", 1, 3, 0, 3, Q("32.5 mm")),
    Sketcher.Constraint("DistanceY", -1, 1, 0, 3, Q("16.25 mm")),
])
pocket8 = body.newObject("PartDesign::Pocket", "Pocket007")
pocket8.Profile = sketch15
pocket8.Length = 5
pocket8.Reversed = True

# Sketch on XY plane
sketch16 = body.newObject("Sketcher::SketchObject", "Sketch015")
sketch16.AttachmentSupport = (doc.getObject("XY_Plane"), [""])
sketch16.MapMode = "FlatFace"
sketch16.AttachmentOffset = App.Placement(Vector(0, 0, 18), App.Rotation())
sketch16.addGeometry([
    Part.LineSegment(Vector(42, 34, 0), Vector(42, 27, 0)),  # 0
    Part.LineSegment(Vector(42, 27, 0), Vector(36, 27, 0)),  # 1
    Part.LineSegment(Vector(36, 27, 0), Vector(36, 34, 0)),  # 2
    Part.LineSegment(Vector(36, 34, 0), Vector(42, 34, 0)),  # 3
    Part.LineSegment(Vector(-18, 34, 0), Vector(-18, 27, 0)),  # 4
    Part.LineSegment(Vector(-18, 27, 0), Vector(-25, 27, 0)),  # 5
    Part.LineSegment(Vector(-25, 27, 0), Vector(-25, 34, 0)),  # 6
    Part.LineSegment(Vector(-25, 34, 0), Vector(-18, 34, 0)),  # 7
    Part.LineSegment(Vector(-18, -24, 0), Vector(-18, -31, 0)),  # 8
    Part.LineSegment(Vector(-18, -31, 0), Vector(-25, -31, 0)),  # 9
    Part.LineSegment(Vector(-25, -31, 0), Vector(-25, -24, 0)),  # 10
    Part.LineSegment(Vector(-25, -24, 0), Vector(-18, -24, 0)),  # 11
    Part.LineSegment(Vector(42, -24, 0), Vector(42, -31, 0)),  # 12
    Part.LineSegment(Vector(42, -31, 0), Vector(36, -31, 0)),  # 13
    Part.LineSegment(Vector(36, -31, 0), Vector(36, -24, 0)),  # 14
    Part.LineSegment(Vector(36, -24, 0), Vector(42, -24, 0)),  # 15
], False)
sketch16.addConstraint([
    Sketcher.Constraint("Coincident", 0, 2, 1, 1),
    Sketcher.Constraint("Coincident", 1, 2, 2, 1),
    Sketcher.Constraint("Coincident", 2, 2, 3, 1),
    Sketcher.Constraint("Coincident", 3, 2, 0, 1),
    Sketcher.Constraint("Coincident", 4, 2, 5, 1),
    Sketcher.Constraint("Coincident", 5, 2, 6, 1),
    Sketcher.Constraint("Coincident", 6, 2, 7, 1),
    Sketcher.Constraint("Coincident", 7, 2, 4, 1),
    Sketcher.Constraint("Coincident", 8, 2, 9, 1),
    Sketcher.Constraint("Coincident", 9, 2, 10, 1),
    Sketcher.Constraint("Coincident", 10, 2, 11, 1),
    Sketcher.Constraint("Coincident", 11, 2, 8, 1),
    Sketcher.Constraint("Coincident", 12, 2, 13, 1),
    Sketcher.Constraint("Coincident", 13, 2, 14, 1),
    Sketcher.Constraint("Coincident", 14, 2, 15, 1),
    Sketcher.Constraint("Coincident", 15, 2, 12, 1),
    Sketcher.Constraint("Vertical", 0),
    Sketcher.Constraint("Horizontal", 1),
    Sketcher.Constraint("Vertical", 2),
    Sketcher.Constraint("Horizontal", 3),
    Sketcher.Constraint("Vertical", 4),
    Sketcher.Constraint("Horizontal", 5),
    Sketcher.Constraint("Vertical", 6),
    Sketcher.Constraint("Horizontal", 7),
    Sketcher.Constraint("Vertical", 8),
    Sketcher.Constraint("Horizontal", 9),
    Sketcher.Constraint("Vertical", 10),
    Sketcher.Constraint("Horizontal", 11),
    Sketcher.Constraint("Vertical", 12),
    Sketcher.Constraint("Horizontal", 13),
    Sketcher.Constraint("Vertical", 14),
    Sketcher.Constraint("Horizontal", 15),
    Sketcher.Constraint("Horizontal", 1, 2, 4, 2),
    Sketcher.Constraint("Horizontal", 3, 2, 6, 2),
    Sketcher.Constraint("Horizontal", 9, 2, 12, 2),
    Sketcher.Constraint("Horizontal", 11, 2, 14, 2),
    Sketcher.Constraint("Vertical", 7, 2, 8, 2),
    Sketcher.Constraint("Vertical", 6, 2, 9, 2),
    Sketcher.Constraint("Vertical", 3, 2, 12, 2),
    Sketcher.Constraint("Vertical", 2, 2, 13, 2),
    Sketcher.Constraint("Equal", 3, 5),
    Sketcher.Constraint("Equal", 15, 0),
    Sketcher.Constraint("Equal", 6, 8),
    Sketcher.Constraint("DistanceX", 1, 2, 1, 1, Q("7 mm")),
    Sketcher.Constraint("DistanceX", -1, 1, 0, 2, Q("42.5 mm")),
    Sketcher.Constraint("DistanceY", 8, 2, 4, 2, Q("58.5 mm")),
    Sketcher.Constraint("DistanceY", -1, 1, 0, 2, Q("27.25 mm")),
    Sketcher.Constraint("DistanceX", 4, 2, -1, 1, Q("17.95 mm")),
])
pad8 = body.newObject("PartDesign::Pad", "Pad007")
pad8.Profile = sketch16
pad8.Length = 5
pad8.Reversed = True

# Sketch on XY plane
sketch17 = body.newObject("Sketcher::SketchObject", "Sketch016")
sketch17.AttachmentSupport = (doc.getObject("XY_Plane"), [""])
sketch17.MapMode = "FlatFace"
sketch17.AttachmentOffset = App.Placement(Vector(0, 0, 13), App.Rotation())
sketch17.addGeometry([
    Part.Circle(Vector(39, 30.8, 0), Vector(0, 0, 1), 1.5),
    Part.Circle(Vector(-21.4, 30.8, 0), Vector(0, 0, 1), 1.5),
    Part.Circle(Vector(-21.4, -27.8, 0), Vector(0, 0, 1), 1.5),
    Part.Circle(Vector(39, -27.8, 0), Vector(0, 0, 1), 1.5),
], False)
sketch17.addConstraint([
    Sketcher.Constraint("Equal", 0, 1),
    Sketcher.Constraint("Equal", 1, 2),
    Sketcher.Constraint("Equal", 2, 3),
    Sketcher.Constraint("Horizontal", 0, 3, 1, 3),
    Sketcher.Constraint("Horizontal", 2, 3, 3, 3),
    Sketcher.Constraint("Vertical", 1, 3, 2, 3),
    Sketcher.Constraint("Vertical", 0, 3, 3, 3),
    Sketcher.Constraint("Diameter", 0, Q("3 mm")),
    Sketcher.Constraint("DistanceX", -1, 1, 0, 3, Q("39 mm")),
    Sketcher.Constraint("DistanceY", 2, 3, 1, 3, Q("58.5 mm")),
    Sketcher.Constraint("DistanceY", -1, 1, 0, 3, Q("30.75 mm")),
    Sketcher.Constraint("DistanceX", 1, 3, -1, 1, Q("21.45 mm")),
])
pocket9 = body.newObject("PartDesign::Pocket", "Pocket008")
pocket9.Profile = sketch17
pocket9.Length = 5
pocket9.Reversed = True

doc.recompute()
